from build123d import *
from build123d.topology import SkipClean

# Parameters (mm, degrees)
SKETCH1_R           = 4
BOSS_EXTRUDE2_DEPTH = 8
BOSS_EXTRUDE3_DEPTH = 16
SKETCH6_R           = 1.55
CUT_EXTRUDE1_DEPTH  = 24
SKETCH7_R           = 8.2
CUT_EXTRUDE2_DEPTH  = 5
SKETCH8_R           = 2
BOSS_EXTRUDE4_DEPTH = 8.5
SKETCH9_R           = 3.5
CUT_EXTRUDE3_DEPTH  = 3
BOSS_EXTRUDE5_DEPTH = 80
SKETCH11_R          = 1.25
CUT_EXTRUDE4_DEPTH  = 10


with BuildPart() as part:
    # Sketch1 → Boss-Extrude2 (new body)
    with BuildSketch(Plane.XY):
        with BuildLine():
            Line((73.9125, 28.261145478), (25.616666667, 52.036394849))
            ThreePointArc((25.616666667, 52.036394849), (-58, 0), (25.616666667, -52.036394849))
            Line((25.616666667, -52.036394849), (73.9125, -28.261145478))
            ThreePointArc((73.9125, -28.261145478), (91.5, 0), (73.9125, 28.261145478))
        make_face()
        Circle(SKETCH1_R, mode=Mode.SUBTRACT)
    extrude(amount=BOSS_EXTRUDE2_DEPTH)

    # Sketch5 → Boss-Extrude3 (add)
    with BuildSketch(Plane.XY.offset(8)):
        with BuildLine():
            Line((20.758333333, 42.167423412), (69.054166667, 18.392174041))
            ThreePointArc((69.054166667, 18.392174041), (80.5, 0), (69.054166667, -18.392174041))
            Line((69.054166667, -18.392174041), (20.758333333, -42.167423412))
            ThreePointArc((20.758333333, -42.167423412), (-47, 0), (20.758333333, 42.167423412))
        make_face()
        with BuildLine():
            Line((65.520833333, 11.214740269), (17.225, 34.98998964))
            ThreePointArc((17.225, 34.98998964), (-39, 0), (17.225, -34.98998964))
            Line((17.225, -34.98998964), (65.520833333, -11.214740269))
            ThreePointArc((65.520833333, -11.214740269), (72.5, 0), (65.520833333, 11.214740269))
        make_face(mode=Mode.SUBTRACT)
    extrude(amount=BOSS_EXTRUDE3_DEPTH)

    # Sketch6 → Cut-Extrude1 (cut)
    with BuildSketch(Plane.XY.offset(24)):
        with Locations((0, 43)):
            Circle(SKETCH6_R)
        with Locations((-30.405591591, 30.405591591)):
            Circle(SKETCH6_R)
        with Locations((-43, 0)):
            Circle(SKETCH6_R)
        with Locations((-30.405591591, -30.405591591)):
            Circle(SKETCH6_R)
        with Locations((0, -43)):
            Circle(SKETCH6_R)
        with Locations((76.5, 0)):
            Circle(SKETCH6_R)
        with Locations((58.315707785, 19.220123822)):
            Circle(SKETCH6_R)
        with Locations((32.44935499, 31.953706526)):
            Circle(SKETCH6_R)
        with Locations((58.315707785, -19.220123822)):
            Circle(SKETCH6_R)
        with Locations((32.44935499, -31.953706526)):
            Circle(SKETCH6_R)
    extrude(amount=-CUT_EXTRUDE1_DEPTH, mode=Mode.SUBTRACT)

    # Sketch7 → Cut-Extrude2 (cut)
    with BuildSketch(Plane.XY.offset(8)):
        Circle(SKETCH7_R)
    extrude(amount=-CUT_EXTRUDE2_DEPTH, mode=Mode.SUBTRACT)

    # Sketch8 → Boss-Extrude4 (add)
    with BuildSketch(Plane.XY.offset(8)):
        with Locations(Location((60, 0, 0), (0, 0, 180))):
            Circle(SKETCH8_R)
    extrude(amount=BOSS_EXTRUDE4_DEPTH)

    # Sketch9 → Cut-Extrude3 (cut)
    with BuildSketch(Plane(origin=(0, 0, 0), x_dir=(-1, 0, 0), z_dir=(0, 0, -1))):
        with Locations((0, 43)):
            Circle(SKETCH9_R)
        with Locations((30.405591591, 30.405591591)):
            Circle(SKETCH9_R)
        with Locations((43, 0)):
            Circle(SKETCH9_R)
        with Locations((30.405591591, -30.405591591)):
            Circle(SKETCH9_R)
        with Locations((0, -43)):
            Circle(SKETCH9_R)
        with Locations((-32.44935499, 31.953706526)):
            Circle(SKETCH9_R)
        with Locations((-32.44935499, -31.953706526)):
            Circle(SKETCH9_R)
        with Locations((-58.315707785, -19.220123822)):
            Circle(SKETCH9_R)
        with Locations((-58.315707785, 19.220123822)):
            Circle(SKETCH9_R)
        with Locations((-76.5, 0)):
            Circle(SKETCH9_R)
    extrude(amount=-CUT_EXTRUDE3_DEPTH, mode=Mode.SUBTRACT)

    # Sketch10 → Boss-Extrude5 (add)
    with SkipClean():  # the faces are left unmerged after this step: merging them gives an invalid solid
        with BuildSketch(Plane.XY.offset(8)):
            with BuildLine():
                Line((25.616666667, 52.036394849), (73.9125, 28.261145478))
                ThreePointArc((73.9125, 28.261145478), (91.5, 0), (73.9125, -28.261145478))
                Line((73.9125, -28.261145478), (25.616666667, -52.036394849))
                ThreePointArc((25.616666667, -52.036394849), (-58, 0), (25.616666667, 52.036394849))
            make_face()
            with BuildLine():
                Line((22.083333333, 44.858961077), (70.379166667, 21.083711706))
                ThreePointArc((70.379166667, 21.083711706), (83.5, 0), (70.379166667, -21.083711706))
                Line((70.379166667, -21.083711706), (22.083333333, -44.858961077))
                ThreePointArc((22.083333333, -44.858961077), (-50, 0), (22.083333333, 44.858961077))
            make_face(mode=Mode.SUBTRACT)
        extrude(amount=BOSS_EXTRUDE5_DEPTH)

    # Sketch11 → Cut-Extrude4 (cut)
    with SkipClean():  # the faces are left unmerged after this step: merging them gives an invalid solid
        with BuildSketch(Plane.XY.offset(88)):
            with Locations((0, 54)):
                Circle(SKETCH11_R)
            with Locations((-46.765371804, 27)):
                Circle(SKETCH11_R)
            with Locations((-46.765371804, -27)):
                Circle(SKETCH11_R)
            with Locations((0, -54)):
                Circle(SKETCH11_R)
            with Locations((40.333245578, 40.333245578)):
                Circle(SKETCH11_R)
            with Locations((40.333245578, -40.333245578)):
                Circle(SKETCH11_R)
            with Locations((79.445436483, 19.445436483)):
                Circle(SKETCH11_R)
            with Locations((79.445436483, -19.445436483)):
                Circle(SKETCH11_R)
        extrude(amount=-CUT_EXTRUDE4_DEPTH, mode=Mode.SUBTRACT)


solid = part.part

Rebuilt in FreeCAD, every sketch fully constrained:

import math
import FreeCAD as App
import Part
import Sketcher
from FreeCAD import Vector
Q = App.Units.Quantity

doc = App.newDocument("Part")
body = doc.addObject("PartDesign::Body", "Body")

# Sketch on XY plane
sketch1 = body.newObject("Sketcher::SketchObject", "Sketch")
sketch1.AttachmentSupport = (doc.getObject("XY_Plane"), [""])
sketch1.MapMode = "FlatFace"
sketch1.addGeometry(Part.LineSegment(Vector(73.9125, 28.261145, 0), Vector(25.616667, 52.036395, 0)), False)
sketch1.addGeometry(Part.ArcOfCircle(Part.Circle(Vector(0, 0, 0), Vector(0, 0, 1), 58), math.radians(63.789731), math.radians(296.210269)), False)
sketch1.addGeometry(Part.LineSegment(Vector(25.616667, -52.036395, 0), Vector(73.9125, -28.261145, 0)), False)
sketch1.addGeometry(Part.ArcOfCircle(Part.Circle(Vector(60, 0, 0), Vector(0, 0, 1), 31.5), math.radians(-63.789731), math.radians(63.789731)), False)
sketch1.addGeometry(Part.Circle(Vector(0, 0, 0), Vector(0, 0, 1), 4), False)
sketch1.addConstraint(Sketcher.Constraint("Tangent", 0, 2, 1, 1))
sketch1.addConstraint(Sketcher.Constraint("Tangent", 1, 2, 2, 1))
sketch1.addConstraint(Sketcher.Constraint("Tangent", 2, 2, 3, 1))
sketch1.addConstraint(Sketcher.Constraint("Tangent", 3, 2, 0, 1))
sketch1.addConstraint(Sketcher.Constraint("Coincident", 1, 3, -1, 1))
sketch1.addConstraint(Sketcher.Constraint("Coincident", 4, 3, -1, 1))
sketch1.addConstraint(Sketcher.Constraint("PointOnObject", 3, 3, -1))
sketch1.addConstraint(Sketcher.Constraint("Diameter", 4, Q("8 mm")))
sketch1.addConstraint(Sketcher.Constraint("Radius", 1, Q("58 mm")))
sketch1.addConstraint(Sketcher.Constraint("Radius", 3, Q("31.5 mm")))
sketch1.addConstraint(Sketcher.Constraint("DistanceX", -1, 1, 3, 3, Q("60 mm")))
pad1 = body.newObject("PartDesign::Pad", "Pad")
pad1.Profile = sketch1
pad1.Length = 8

# Sketch on XY plane
sketch2 = body.newObject("Sketcher::SketchObject", "Sketch001")
sketch2.AttachmentSupport = (doc.getObject("XY_Plane"), [""])
sketch2.MapMode = "FlatFace"
sketch2.AttachmentOffset = App.Placement(Vector(0, 0, 8), App.Rotation())
sketch2.addGeometry(Part.LineSegment(Vector(69.054167, 18.392174, 0), Vector(20.758333, 42.167423, 0)), False)
sketch2.addGeometry(Part.ArcOfCircle(Part.Circle(Vector(0, 0, 0), Vector(0, 0, 1), 47), math.radians(63.789731), math.radians(296.210269)), False)
sketch2.addGeometry(Part.LineSegment(Vector(20.758333, -42.167423, 0), Vector(69.054167, -18.392174, 0)), False)
sketch2.addGeometry(Part.ArcOfCircle(Part.Circle(Vector(60, 0, 0), Vector(0, 0, 1), 20.5), math.radians(-63.789731), math.radians(63.789731)), False)
sketch2.addGeometry(Part.ArcOfCircle(Part.Circle(Vector(60, 0, 0), Vector(0, 0, 1), 12.5), math.radians(-63.789731), math.radians(63.789731)), False)
sketch2.addGeometry(Part.LineSegment(Vector(65.520833, -11.21474, 0), Vector(17.225, -34.98999, 0)), False)
sketch2.addGeometry(Part.ArcOfCircle(Part.Circle(Vector(0, 0, 0), Vector(0, 0, 1), 39), math.radians(63.789731), math.radians(296.210269)), False)
sketch2.addGeometry(Part.LineSegment(Vector(17.225, 34.98999, 0), Vector(65.520833, 11.21474, 0)), False)
sketch2.addConstraint(Sketcher.Constraint("Tangent", 0, 2, 1, 1))
sketch2.addConstraint(Sketcher.Constraint("Tangent", 1, 2, 2, 1))
sketch2.addConstraint(Sketcher.Constraint("Tangent", 2, 2, 3, 1))
sketch2.addConstraint(Sketcher.Constraint("Tangent", 3, 2, 0, 1))
sketch2.addConstraint(Sketcher.Constraint("Tangent", 4, 1, 5, 1))
sketch2.addConstraint(Sketcher.Constraint("Tangent", 5, 2, 6, 2))
sketch2.addConstraint(Sketcher.Constraint("Tangent", 6, 1, 7, 1))
sketch2.addConstraint(Sketcher.Constraint("Tangent", 7, 2, 4, 2))
sketch2.addConstraint(Sketcher.Constraint("Coincident", 1, 3, -1, 1))
sketch2.addConstraint(Sketcher.Constraint("Coincident", 6, 3, -1, 1))
sketch2.addConstraint(Sketcher.Constraint("Coincident", 4, 3, 3, 3))
sketch2.addConstraint(Sketcher.Constraint("PointOnObject", 3, 3, -1))
sketch2.addConstraint(Sketcher.Constraint("Parallel", 2, 5))
sketch2.addConstraint(Sketcher.Constraint("Radius", 1, Q("47 mm")))
sketch2.addConstraint(Sketcher.Constraint("Radius", 6, Q("39 mm")))
sketch2.addConstraint(Sketcher.Constraint("Radius", 3, Q("20.5 mm")))
sketch2.addConstraint(Sketcher.Constraint("DistanceX", -1, 1, 3, 3, Q("60 mm")))
pad2 = body.newObject("PartDesign::Pad", "Pad001")
pad2.Profile = sketch2
pad2.Length = 16

# Sketch on XY plane
sketch3 = body.newObject("Sketcher::SketchObject", "Sketch002")
sketch3.AttachmentSupport = (doc.getObject("XY_Plane"), [""])
sketch3.MapMode = "FlatFace"
sketch3.AttachmentOffset = App.Placement(Vector(0, 0, 24), App.Rotation())
sketch3.addGeometry(Part.Circle(Vector(0, 43, 0), Vector(0, 0, 1), 1.55), False)
sketch3.addGeometry(Part.Circle(Vector(-30.405592, 30.405592, 0), Vector(0, 0, 1), 1.55), False)
sketch3.addGeometry(Part.Circle(Vector(-43, 0, 0), Vector(0, 0, 1), 1.55), False)
sketch3.addGeometry(Part.Circle(Vector(-30.405592, -30.405592, 0), Vector(0, 0, 1), 1.55), False)
sketch3.addGeometry(Part.Circle(Vector(0, -43, 0), Vector(0, 0, 1), 1.55), False)
sketch3.addGeometry(Part.Circle(Vector(76.5, 0, 0), Vector(0, 0, 1), 1.55), False)
sketch3.addGeometry(Part.Circle(Vector(58.315708, 19.220124, 0), Vector(0, 0, 1), 1.55), False)
sketch3.addGeometry(Part.Circle(Vector(32.449355, 31.953707, 0), Vector(0, 0, 1), 1.55), False)
sketch3.addGeometry(Part.Circle(Vector(58.315708, -19.220124, 0), Vector(0, 0, 1), 1.55), False)
sketch3.addGeometry(Part.Circle(Vector(32.449355, -31.953707, 0), Vector(0, 0, 1), 1.55), False)
sketch3.addConstraint(Sketcher.Constraint("Equal", 0, 1))
sketch3.addConstraint(Sketcher.Constraint("Equal", 1, 2))
sketch3.addConstraint(Sketcher.Constraint("Equal", 2, 3))
sketch3.addConstraint(Sketcher.Constraint("Equal", 3, 4))
sketch3.addConstraint(Sketcher.Constraint("Equal", 4, 5))
sketch3.addConstraint(Sketcher.Constraint("Equal", 5, 6))
sketch3.addConstraint(Sketcher.Constraint("Equal", 6, 7))
sketch3.addConstraint(Sketcher.Constraint("Equal", 7, 8))
sketch3.addConstraint(Sketcher.Constraint("Equal", 8, 9))
sketch3.addConstraint(Sketcher.Constraint("Symmetric", 0, 3, 4, 3, -1, 1))
sketch3.addConstraint(Sketcher.Constraint("Symmetric", 1, 3, 3, 3, -1))
sketch3.addConstraint(Sketcher.Constraint("Symmetric", 6, 3, 8, 3, -1))
sketch3.addConstraint(Sketcher.Constraint("Symmetric", 7, 3, 9, 3, -1))
sketch3.addConstraint(Sketcher.Constraint("PointOnObject", 0, 3, -2))
sketch3.addConstraint(Sketcher.Constraint("PointOnObject", 2, 3, -1))
sketch3.addConstraint(Sketcher.Constraint("PointOnObject", 5, 3, -1))
sketch3.addConstraint(Sketcher.Constraint("Diameter", 0, Q("3.1 mm")))
sketch3.addConstraint(Sketcher.Constraint("DistanceY", -1, 1, 0, 3, Q("43 mm")))
sketch3.addConstraint(Sketcher.Constraint("DistanceX", 2, 3, -1, 1, Q("43 mm")))
sketch3.addConstraint(Sketcher.Constraint("DistanceX", -1, 1, 5, 3, Q("76.5 mm")))
sketch3.addConstraint(Sketcher.Constraint("DistanceX", 1, 3, 6, 3, Q("88.721299 mm")))
sketch3.addConstraint(Sketcher.Constraint("DistanceX", 1, 3, -1, 1, Q("30.405592 mm")))
sketch3.addConstraint(Sketcher.Constraint("DistanceY", -1, 1, 1, 3, Q("30.405592 mm")))
sketch3.addConstraint(Sketcher.Constraint("DistanceY", 8, 3, 7, 3, Q("51.17383 mm")))
sketch3.addConstraint(Sketcher.Constraint("DistanceY", -1, 1, 6, 3, Q("19.220124 mm")))
sketch3.addConstraint(Sketcher.Constraint("DistanceX", -1, 1, 7, 3, Q("32.449355 mm")))
pocket1 = body.newObject("PartDesign::Pocket", "Pocket")
pocket1.Profile = sketch3
pocket1.Length = 24

# Sketch on XY plane
sketch4 = body.newObject("Sketcher::SketchObject", "Sketch003")
sketch4.AttachmentSupport = (doc.getObject("XY_Plane"), [""])
sketch4.MapMode = "FlatFace"
sketch4.AttachmentOffset = App.Placement(Vector(0, 0, 8), App.Rotation())
sketch4.addGeometry(Part.Circle(Vector(0, 0, 0), Vector(0, 0, 1), 8.2), False)
sketch4.addConstraint(Sketcher.Constraint("Coincident", 0, 3, -1, 1))
sketch4.addConstraint(Sketcher.Constraint("Diameter", 0, Q("16.4 mm")))
pocket2 = body.newObject("PartDesign::Pocket", "Pocket001")
pocket2.Profile = sketch4
pocket2.Length = 5

# Sketch on XY plane
sketch5 = body.newObject("Sketcher::SketchObject", "Sketch004")
sketch5.AttachmentSupport = (doc.getObject("XY_Plane"), [""])
sketch5.MapMode = "FlatFace"
sketch5.AttachmentOffset = App.Placement(Vector(0, 0, 8), App.Rotation())
sketch5.addGeometry(Part.Circle(Vector(60, 0, 0), Vector(0, 0, 1), 2), False)
sketch5.addConstraint(Sketcher.Constraint("PointOnObject", 0, 3, -1))
sketch5.addConstraint(Sketcher.Constraint("Diameter", 0, Q("4 mm")))
sketch5.addConstraint(Sketcher.Constraint("DistanceX", -1, 1, 0, 3, Q("60 mm")))
pad3 = body.newObject("PartDesign::Pad", "Pad002")
pad3.Profile = sketch5
pad3.Length = 8.5

# Sketch on XY plane
sketch6 = body.newObject("Sketcher::SketchObject", "Sketch005")
sketch6.AttachmentSupport = (doc.getObject("XY_Plane"), [""])
sketch6.MapMode = "FlatFace"
sketch6.addGeometry(Part.Circle(Vector(0, 43, 0), Vector(0, 0, 1), 3.5), False)
sketch6.addGeometry(Part.Circle(Vector(-30.405592, 30.405592, 0), Vector(0, 0, 1), 3.5), False)
sketch6.addGeometry(Part.Circle(Vector(-43, 0, 0), Vector(0, 0, 1), 3.5), False)
sketch6.addGeometry(Part.Circle(Vector(-30.405592, -30.405592, 0), Vector(0, 0, 1), 3.5), False)
sketch6.addGeometry(Part.Circle(Vector(0, -43, 0), Vector(0, 0, 1), 3.5), False)
sketch6.addGeometry(Part.Circle(Vector(32.449355, 31.953707, 0), Vector(0, 0, 1), 3.5), False)
sketch6.addGeometry(Part.Circle(Vector(32.449355, -31.953707, 0), Vector(0, 0, 1), 3.5), False)
sketch6.addGeometry(Part.Circle(Vector(58.315708, -19.220124, 0), Vector(0, 0, 1), 3.5), False)
sketch6.addGeometry(Part.Circle(Vector(58.315708, 19.220124, 0), Vector(0, 0, 1), 3.5), False)
sketch6.addGeometry(Part.Circle(Vector(76.5, 0, 0), Vector(0, 0, 1), 3.5), False)
sketch6.addConstraint(Sketcher.Constraint("Equal", 0, 1))
sketch6.addConstraint(Sketcher.Constraint("Equal", 1, 2))
sketch6.addConstraint(Sketcher.Constraint("Equal", 2, 3))
sketch6.addConstraint(Sketcher.Constraint("Equal", 3, 4))
sketch6.addConstraint(Sketcher.Constraint("Equal", 4, 5))
sketch6.addConstraint(Sketcher.Constraint("Equal", 5, 6))
sketch6.addConstraint(Sketcher.Constraint("Equal", 6, 7))
sketch6.addConstraint(Sketcher.Constraint("Equal", 7, 8))
sketch6.addConstraint(Sketcher.Constraint("Equal", 8, 9))
sketch6.addConstraint(Sketcher.Constraint("Symmetric", 0, 3, 4, 3, -1, 1))
sketch6.addConstraint(Sketcher.Constraint("Symmetric", 1, 3, 3, 3, -1))
sketch6.addConstraint(Sketcher.Constraint("Symmetric", 5, 3, 6, 3, -1))
sketch6.addConstraint(Sketcher.Constraint("Symmetric", 7, 3, 8, 3, -1))
sketch6.addConstraint(Sketcher.Constraint("PointOnObject", 0, 3, -2))
sketch6.addConstraint(Sketcher.Constraint("PointOnObject", 2, 3, -1))
sketch6.addConstraint(Sketcher.Constraint("PointOnObject", 9, 3, -1))
sketch6.addConstraint(Sketcher.Constraint("Diameter", 0, Q("7 mm")))
sketch6.addConstraint(Sketcher.Constraint("DistanceY", -1, 1, 0, 3, Q("43 mm")))
sketch6.addConstraint(Sketcher.Constraint("DistanceX", 2, 3, -1, 1, Q("43 mm")))
sketch6.addConstraint(Sketcher.Constraint("DistanceX", -1, 1, 9, 3, Q("76.5 mm")))
sketch6.addConstraint(Sketcher.Constraint("DistanceY", 3, 3, 5, 3, Q("62.359298 mm")))
sketch6.addConstraint(Sketcher.Constraint("DistanceX", 3, 3, 7, 3, Q("88.721299 mm")))
sketch6.addConstraint(Sketcher.Constraint("DistanceX", 1, 3, -1, 1, Q("30.405592 mm")))
sketch6.addConstraint(Sketcher.Constraint("DistanceY", -1, 1, 1, 3, Q("30.405592 mm")))
sketch6.addConstraint(Sketcher.Constraint("DistanceY", 7, 3, 5, 3, Q("51.17383 mm")))
sketch6.addConstraint(Sketcher.Constraint("DistanceX", -1, 1, 5, 3, Q("32.449355 mm")))
pocket3 = body.newObject("PartDesign::Pocket", "Pocket002")
pocket3.Profile = sketch6
pocket3.Length = 3
pocket3.Reversed = True

# Sketch on XY plane
sketch7 = body.newObject("Sketcher::SketchObject", "Sketch006")
sketch7.AttachmentSupport = (doc.getObject("XY_Plane"), [""])
sketch7.MapMode = "FlatFace"
sketch7.AttachmentOffset = App.Placement(Vector(0, 0, 8), App.Rotation())
sketch7.addGeometry(Part.LineSegment(Vector(73.9125, 28.261145, 0), Vector(25.616667, 52.036395, 0)), False)
sketch7.addGeometry(Part.ArcOfCircle(Part.Circle(Vector(0, 0, 0), Vector(0, 0, 1), 58), math.radians(63.789731), math.radians(296.210269)), False)
sketch7.addGeometry(Part.LineSegment(Vector(25.616667, -52.036395, 0), Vector(73.9125, -28.261145, 0)), False)
sketch7.addGeometry(Part.ArcOfCircle(Part.Circle(Vector(60, 0, 0), Vector(0, 0, 1), 31.5), math.radians(-63.789731), math.radians(63.789731)), False)
sketch7.addGeometry(Part.LineSegment(Vector(22.083333, 44.858961, 0), Vector(70.379167, 21.083712, 0)), False)
sketch7.addGeometry(Part.ArcOfCircle(Part.Circle(Vector(60, 0, 0), Vector(0, 0, 1), 23.5), math.radians(-63.789731), math.radians(63.789731)), False)
sketch7.addGeometry(Part.LineSegment(Vector(70.379167, -21.083712, 0), Vector(22.083333, -44.858961, 0)), False)
sketch7.addGeometry(Part.ArcOfCircle(Part.Circle(Vector(0, 0, 0), Vector(0, 0, 1), 50), math.radians(63.789731), math.radians(296.210269)), False)
sketch7.addConstraint(Sketcher.Constraint("Tangent", 0, 2, 1, 1))
sketch7.addConstraint(Sketcher.Constraint("Tangent", 1, 2, 2, 1))
sketch7.addConstraint(Sketcher.Constraint("Tangent", 2, 2, 3, 1))
sketch7.addConstraint(Sketcher.Constraint("Tangent", 3, 2, 0, 1))
sketch7.addConstraint(Sketcher.Constraint("Tangent", 4, 2, 5, 2))
sketch7.addConstraint(Sketcher.Constraint("Tangent", 5, 1, 6, 1))
sketch7.addConstraint(Sketcher.Constraint("Tangent", 6, 2, 7, 2))
sketch7.addConstraint(Sketcher.Constraint("Tangent", 7, 1, 4, 1))
sketch7.addConstraint(Sketcher.Constraint("Coincident", 1, 3, -1, 1))
sketch7.addConstraint(Sketcher.Constraint("Coincident", 7, 3, -1, 1))
sketch7.addConstraint(Sketcher.Constraint("Coincident", 5, 3, 3, 3))
sketch7.addConstraint(Sketcher.Constraint("PointOnObject", 3, 3, -1))
sketch7.addConstraint(Sketcher.Constraint("Parallel", 0, 4))
sketch7.addConstraint(Sketcher.Constraint("Radius", 1, Q("58 mm")))
sketch7.addConstraint(Sketcher.Constraint("Radius", 7, Q("50 mm")))
sketch7.addConstraint(Sketcher.Constraint("Radius", 3, Q("31.5 mm")))
sketch7.addConstraint(Sketcher.Constraint("DistanceX", -1, 1, 3, 3, Q("60 mm")))
pad4 = body.newObject("PartDesign::Pad", "Pad003")
pad4.Profile = sketch7
pad4.Length = 80

# Sketch on XY plane
sketch8 = body.newObject("Sketcher::SketchObject", "Sketch007")
sketch8.AttachmentSupport = (doc.getObject("XY_Plane"), [""])
sketch8.MapMode = "FlatFace"
sketch8.AttachmentOffset = App.Placement(Vector(0, 0, 88), App.Rotation())
sketch8.addGeometry(Part.Circle(Vector(0, 54, 0), Vector(0, 0, 1), 1.25), False)
sketch8.addGeometry(Part.Circle(Vector(-46.765372, 27, 0), Vector(0, 0, 1), 1.25), False)
sketch8.addGeometry(Part.Circle(Vector(-46.765372, -27, 0), Vector(0, 0, 1), 1.25), False)
sketch8.addGeometry(Part.Circle(Vector(0, -54, 0), Vector(0, 0, 1), 1.25), False)
sketch8.addGeometry(Part.Circle(Vector(40.333246, 40.333246, 0), Vector(0, 0, 1), 1.25), False)
sketch8.addGeometry(Part.Circle(Vector(40.333246, -40.333246, 0), Vector(0, 0, 1), 1.25), False)
sketch8.addGeometry(Part.Circle(Vector(79.445436, 19.445436, 0), Vector(0, 0, 1), 1.25), False)
sketch8.addGeometry(Part.Circle(Vector(79.445436, -19.445436, 0), Vector(0, 0, 1), 1.25), False)
sketch8.addConstraint(Sketcher.Constraint("Equal", 0, 1))
sketch8.addConstraint(Sketcher.Constraint("Equal", 1, 2))
sketch8.addConstraint(Sketcher.Constraint("Equal", 2, 3))
sketch8.addConstraint(Sketcher.Constraint("Equal", 3, 4))
sketch8.addConstraint(Sketcher.Constraint("Equal", 4, 5))
sketch8.addConstraint(Sketcher.Constraint("Equal", 5, 6))
sketch8.addConstraint(Sketcher.Constraint("Equal", 6, 7))
sketch8.addConstraint(Sketcher.Constraint("Symmetric", 0, 3, 3, 3, -1, 1))
sketch8.addConstraint(Sketcher.Constraint("Symmetric", 1, 3, 2, 3, -1))
sketch8.addConstraint(Sketcher.Constraint("Symmetric", 4, 3, 5, 3, -1))
sketch8.addConstraint(Sketcher.Constraint("Symmetric", 6, 3, 7, 3, -1))
sketch8.addConstraint(Sketcher.Constraint("PointOnObject", 0, 3, -2))
sketch8.addConstraint(Sketcher.Constraint("Diameter", 0, Q("2.5 mm")))
sketch8.addConstraint(Sketcher.Constraint("DistanceY", -1, 1, 0, 3, Q("54 mm")))
sketch8.addConstraint(Sketcher.Constraint("DistanceY", -1, 1, 1, 3, Q("27 mm")))
sketch8.addConstraint(Sketcher.Constraint("DistanceX", 1, 3, -1, 1, Q("46.765372 mm")))
sketch8.addConstraint(Sketcher.Constraint("DistanceY", 5, 3, 4, 3, Q("80.666491 mm")))
sketch8.addConstraint(Sketcher.Constraint("DistanceX", 4, 3, 6, 3, Q("39.112191 mm")))
sketch8.addConstraint(Sketcher.Constraint("DistanceY", 6, 3, 4, 3, Q("20.887809 mm")))
sketch8.addConstraint(Sketcher.Constraint("DistanceX", 1, 3, 6, 3, Q("126.210808 mm")))
pocket4 = body.newObject("PartDesign::Pocket", "Pocket003")
pocket4.Profile = sketch8
pocket4.Length = 10

doc.recompute()
